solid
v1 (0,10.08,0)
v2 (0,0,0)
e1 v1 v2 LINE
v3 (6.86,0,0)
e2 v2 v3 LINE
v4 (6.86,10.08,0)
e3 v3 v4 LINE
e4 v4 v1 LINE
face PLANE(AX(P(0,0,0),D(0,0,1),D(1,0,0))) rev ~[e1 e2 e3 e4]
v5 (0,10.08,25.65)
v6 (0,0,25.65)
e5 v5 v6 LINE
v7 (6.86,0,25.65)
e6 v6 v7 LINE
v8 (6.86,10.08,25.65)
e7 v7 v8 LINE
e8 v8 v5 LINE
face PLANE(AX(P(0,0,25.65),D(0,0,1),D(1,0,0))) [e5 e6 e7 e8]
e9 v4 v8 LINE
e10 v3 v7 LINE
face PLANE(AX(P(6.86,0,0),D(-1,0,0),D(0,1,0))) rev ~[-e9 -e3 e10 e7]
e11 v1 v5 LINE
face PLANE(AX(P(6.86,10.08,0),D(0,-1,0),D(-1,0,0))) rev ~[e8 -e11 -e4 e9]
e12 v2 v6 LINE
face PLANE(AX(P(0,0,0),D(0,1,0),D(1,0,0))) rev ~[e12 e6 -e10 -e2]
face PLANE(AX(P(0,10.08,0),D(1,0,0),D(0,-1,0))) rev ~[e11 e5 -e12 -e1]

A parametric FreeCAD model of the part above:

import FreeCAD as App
import Part
import Sketcher

V = App.Vector
Q = App.Units.Quantity


def add_polygon(sketch, points):
    """Adds a closed chain of lines whose ends are joined by coincident constraints."""
    first, n = sketch.GeometryCount, len(points)
    for a, b in zip(points, points[1:] + points[:1]):
        sketch.addGeometry(Part.LineSegment(App.Vector(*a, 0), App.Vector(*b, 0)), False)
    for i in range(n):
        sketch.addConstraint(Sketcher.Constraint("Coincident", first + i, 2, first + (i + 1) % n, 1))

doc = App.newDocument("Part")
params = doc.addObject("Spreadsheet::Sheet", "Params")
for row, (alias, value) in enumerate([
    ("sketch1_width", "6.86 mm"),
    ("sketch1_height", "10.08 mm"),
    ("pad1_length", "25.65 mm"),
], start=1):
    params.set(f"A{row}", alias)
    params.set(f"B{row}", "=" + value)
    params.setAlias(f"B{row}", alias)

body = doc.addObject("PartDesign::Body", "Body")

# Sketch on XY plane
sketch1 = body.newObject("Sketcher::SketchObject", "Sketch")
sketch1.AttachmentSupport = (doc.getObject("XY_Plane"), [""])
sketch1.MapMode = "FlatFace"
add_polygon(sketch1, [(0, 10), (0, 0), (7, 0), (7, 10)])  # lines 0-3
sketch1.addConstraint([
    Sketcher.Constraint("Vertical", 0),
    Sketcher.Constraint("Horizontal", 1),
    Sketcher.Constraint("Vertical", 2),
    Sketcher.Constraint("Horizontal", 3),
    Sketcher.Constraint("Coincident", 0, 2, -1, 1),
    Sketcher.Constraint("DistanceX", 1, 1, 1, 2, Q("6.86 mm")),
    Sketcher.Constraint("DistanceY", 0, 2, 0, 1, Q("10.08 mm")),
])
sketch1.setExpression("Constraints[9]", "Params.sketch1_width")
sketch1.setExpression("Constraints[10]", "Params.sketch1_height")
pad1 = body.newObject("PartDesign::Pad", "Pad")
pad1.Profile = sketch1
pad1.setExpression("Length", "Params.pad1_length")

doc.recompute()
